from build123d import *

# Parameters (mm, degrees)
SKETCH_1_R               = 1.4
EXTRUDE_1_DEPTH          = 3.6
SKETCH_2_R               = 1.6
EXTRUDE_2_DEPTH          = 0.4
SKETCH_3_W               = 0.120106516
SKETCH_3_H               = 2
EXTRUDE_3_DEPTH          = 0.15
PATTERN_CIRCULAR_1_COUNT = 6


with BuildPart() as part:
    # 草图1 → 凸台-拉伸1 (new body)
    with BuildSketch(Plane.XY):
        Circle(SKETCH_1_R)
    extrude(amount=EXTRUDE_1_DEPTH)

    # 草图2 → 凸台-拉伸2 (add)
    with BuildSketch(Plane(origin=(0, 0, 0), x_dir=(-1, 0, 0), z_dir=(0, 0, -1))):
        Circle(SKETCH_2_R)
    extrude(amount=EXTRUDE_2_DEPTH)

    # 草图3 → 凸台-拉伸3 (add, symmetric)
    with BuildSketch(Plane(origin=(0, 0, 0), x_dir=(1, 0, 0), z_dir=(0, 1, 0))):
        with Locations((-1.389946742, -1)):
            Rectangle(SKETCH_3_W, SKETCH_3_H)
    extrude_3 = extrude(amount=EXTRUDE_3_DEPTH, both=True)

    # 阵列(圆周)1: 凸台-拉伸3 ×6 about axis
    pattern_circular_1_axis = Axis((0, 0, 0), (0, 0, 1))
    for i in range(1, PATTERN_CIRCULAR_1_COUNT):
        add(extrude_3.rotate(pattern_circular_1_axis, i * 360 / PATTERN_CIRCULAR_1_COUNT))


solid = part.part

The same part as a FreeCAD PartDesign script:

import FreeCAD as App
import Part
import Sketcher
Q = App.Units.Quantity

doc = App.newDocument("Part")
params = doc.addObject("Spreadsheet::Sheet", "Params")
for row, (alias, value) in enumerate([
    ("sketch1_diameter", "2.8 mm"),
    ("pad1_length", "3.6 mm"),
    ("sketch2_diameter", "3.2 mm"),
    ("pad2_length", "0.4 mm"),
    ("sketch3_height", "2 mm"),
    ("pad3_length", "0.3 mm"),
], start=1):
    params.set(f"A{row}", alias)
    params.set(f"B{row}", "=" + value)
    params.setAlias(f"B{row}", alias)

body = doc.addObject("PartDesign::Body", "Body")

# Sketch on XY plane
sketch1 = body.newObject("Sketcher::SketchObject", "Sketch")
sketch1.AttachmentSupport = (doc.getObject("XY_Plane"), [""])
sketch1.MapMode = "FlatFace"
sketch1.addGeometry(Part.Circle(App.Vector(0, 0, 0), App.Vector(0, 0, 1), 1.4), False)
sketch1.addConstraint(Sketcher.Constraint("Coincident", 0, 3, -1, 1))
sketch1.addConstraint(Sketcher.Constraint("Diameter", 0, Q("2.8 mm")))
sketch1.setExpression("Constraints[1]", "Params.sketch1_diameter")
pad1 = body.newObject("PartDesign::Pad", "Pad")
pad1.Profile = sketch1
pad1.setExpression("Length", "Params.pad1_length")

# Sketch on XY plane
sketch2 = body.newObject("Sketcher::SketchObject", "Sketch001")
sketch2.AttachmentSupport = (doc.getObject("XY_Plane"), [""])
sketch2.MapMode = "FlatFace"
sketch2.addGeometry(Part.Circle(App.Vector(0, 0, 0), App.Vector(0, 0, 1), 1.6), False)
sketch2.addConstraint(Sketcher.Constraint("Coincident", 0, 3, -1, 1))
sketch2.addConstraint(Sketcher.Constraint("Diameter", 0, Q("3.2 mm")))
sketch2.setExpression("Constraints[1]", "Params.sketch2_diameter")
pad2 = body.newObject("PartDesign::Pad", "Pad001")
pad2.Profile = sketch2
pad2.setExpression("Length", "Params.pad2_length")
pad2.Reversed = True

# Sketch on XZ plane
sketch3 = body.newObject("Sketcher::SketchObject", "Sketch002")
sketch3.AttachmentSupport = (doc.getObject("XZ_Plane"), [""])
sketch3.MapMode = "FlatFace"
sketch3.addGeometry(Part.LineSegment(App.Vector(-1.45, 0, 0), App.Vector(-1.45, 2, 0)), False)
sketch3.addGeometry(Part.LineSegment(App.Vector(-1.45, 2, 0), App.Vector(-1.33, 2, 0)), False)
sketch3.addGeometry(Part.LineSegment(App.Vector(-1.33, 2, 0), App.Vector(-1.33, 0, 0)), False)
sketch3.addGeometry(Part.LineSegment(App.Vector(-1.33, 0, 0), App.Vector(-1.45, 0, 0)), False)
sketch3.addConstraint(Sketcher.Constraint("Coincident", 0, 2, 1, 1))
sketch3.addConstraint(Sketcher.Constraint("Coincident", 1, 2, 2, 1))
sketch3.addConstraint(Sketcher.Constraint("Coincident", 2, 2, 3, 1))
sketch3.addConstraint(Sketcher.Constraint("Coincident", 3, 2, 0, 1))
sketch3.addConstraint(Sketcher.Constraint("Vertical", 0))
sketch3.addConstraint(Sketcher.Constraint("Horizontal", 1))
sketch3.addConstraint(Sketcher.Constraint("Vertical", 2))
sketch3.addConstraint(Sketcher.Constraint("Horizontal", 3))
sketch3.addConstraint(Sketcher.Constraint("PointOnObject", 2, 2, -1))
sketch3.addConstraint(Sketcher.Constraint("DistanceY", 0, 1, 0, 2, Q("2 mm")))
sketch3.addConstraint(Sketcher.Constraint("DistanceX", 0, 2, -1, 1, Q("1.45 mm")))
sketch3.addConstraint(Sketcher.Constraint("DistanceX", 1, 1, 1, 2, Q("0.120107 mm")))
sketch3.setExpression("Constraints[9]", "Params.sketch3_height")
pad3 = body.newObject("PartDesign::Pad", "Pad002")
pad3.Profile = sketch3
pad3.setExpression("Length", "Params.pad3_length")
pad3.Midplane = True
doc.recompute()

polarpattern = body.newObject("PartDesign::PolarPattern", "PolarPattern")
polarpattern.Originals = [pad3]
polarpattern.Axis = (doc.getObject("Z_Axis"), [""])
polarpattern.Angle = 360
polarpattern.Occurrences = 6
body.Tip = polarpattern

doc.recompute()
